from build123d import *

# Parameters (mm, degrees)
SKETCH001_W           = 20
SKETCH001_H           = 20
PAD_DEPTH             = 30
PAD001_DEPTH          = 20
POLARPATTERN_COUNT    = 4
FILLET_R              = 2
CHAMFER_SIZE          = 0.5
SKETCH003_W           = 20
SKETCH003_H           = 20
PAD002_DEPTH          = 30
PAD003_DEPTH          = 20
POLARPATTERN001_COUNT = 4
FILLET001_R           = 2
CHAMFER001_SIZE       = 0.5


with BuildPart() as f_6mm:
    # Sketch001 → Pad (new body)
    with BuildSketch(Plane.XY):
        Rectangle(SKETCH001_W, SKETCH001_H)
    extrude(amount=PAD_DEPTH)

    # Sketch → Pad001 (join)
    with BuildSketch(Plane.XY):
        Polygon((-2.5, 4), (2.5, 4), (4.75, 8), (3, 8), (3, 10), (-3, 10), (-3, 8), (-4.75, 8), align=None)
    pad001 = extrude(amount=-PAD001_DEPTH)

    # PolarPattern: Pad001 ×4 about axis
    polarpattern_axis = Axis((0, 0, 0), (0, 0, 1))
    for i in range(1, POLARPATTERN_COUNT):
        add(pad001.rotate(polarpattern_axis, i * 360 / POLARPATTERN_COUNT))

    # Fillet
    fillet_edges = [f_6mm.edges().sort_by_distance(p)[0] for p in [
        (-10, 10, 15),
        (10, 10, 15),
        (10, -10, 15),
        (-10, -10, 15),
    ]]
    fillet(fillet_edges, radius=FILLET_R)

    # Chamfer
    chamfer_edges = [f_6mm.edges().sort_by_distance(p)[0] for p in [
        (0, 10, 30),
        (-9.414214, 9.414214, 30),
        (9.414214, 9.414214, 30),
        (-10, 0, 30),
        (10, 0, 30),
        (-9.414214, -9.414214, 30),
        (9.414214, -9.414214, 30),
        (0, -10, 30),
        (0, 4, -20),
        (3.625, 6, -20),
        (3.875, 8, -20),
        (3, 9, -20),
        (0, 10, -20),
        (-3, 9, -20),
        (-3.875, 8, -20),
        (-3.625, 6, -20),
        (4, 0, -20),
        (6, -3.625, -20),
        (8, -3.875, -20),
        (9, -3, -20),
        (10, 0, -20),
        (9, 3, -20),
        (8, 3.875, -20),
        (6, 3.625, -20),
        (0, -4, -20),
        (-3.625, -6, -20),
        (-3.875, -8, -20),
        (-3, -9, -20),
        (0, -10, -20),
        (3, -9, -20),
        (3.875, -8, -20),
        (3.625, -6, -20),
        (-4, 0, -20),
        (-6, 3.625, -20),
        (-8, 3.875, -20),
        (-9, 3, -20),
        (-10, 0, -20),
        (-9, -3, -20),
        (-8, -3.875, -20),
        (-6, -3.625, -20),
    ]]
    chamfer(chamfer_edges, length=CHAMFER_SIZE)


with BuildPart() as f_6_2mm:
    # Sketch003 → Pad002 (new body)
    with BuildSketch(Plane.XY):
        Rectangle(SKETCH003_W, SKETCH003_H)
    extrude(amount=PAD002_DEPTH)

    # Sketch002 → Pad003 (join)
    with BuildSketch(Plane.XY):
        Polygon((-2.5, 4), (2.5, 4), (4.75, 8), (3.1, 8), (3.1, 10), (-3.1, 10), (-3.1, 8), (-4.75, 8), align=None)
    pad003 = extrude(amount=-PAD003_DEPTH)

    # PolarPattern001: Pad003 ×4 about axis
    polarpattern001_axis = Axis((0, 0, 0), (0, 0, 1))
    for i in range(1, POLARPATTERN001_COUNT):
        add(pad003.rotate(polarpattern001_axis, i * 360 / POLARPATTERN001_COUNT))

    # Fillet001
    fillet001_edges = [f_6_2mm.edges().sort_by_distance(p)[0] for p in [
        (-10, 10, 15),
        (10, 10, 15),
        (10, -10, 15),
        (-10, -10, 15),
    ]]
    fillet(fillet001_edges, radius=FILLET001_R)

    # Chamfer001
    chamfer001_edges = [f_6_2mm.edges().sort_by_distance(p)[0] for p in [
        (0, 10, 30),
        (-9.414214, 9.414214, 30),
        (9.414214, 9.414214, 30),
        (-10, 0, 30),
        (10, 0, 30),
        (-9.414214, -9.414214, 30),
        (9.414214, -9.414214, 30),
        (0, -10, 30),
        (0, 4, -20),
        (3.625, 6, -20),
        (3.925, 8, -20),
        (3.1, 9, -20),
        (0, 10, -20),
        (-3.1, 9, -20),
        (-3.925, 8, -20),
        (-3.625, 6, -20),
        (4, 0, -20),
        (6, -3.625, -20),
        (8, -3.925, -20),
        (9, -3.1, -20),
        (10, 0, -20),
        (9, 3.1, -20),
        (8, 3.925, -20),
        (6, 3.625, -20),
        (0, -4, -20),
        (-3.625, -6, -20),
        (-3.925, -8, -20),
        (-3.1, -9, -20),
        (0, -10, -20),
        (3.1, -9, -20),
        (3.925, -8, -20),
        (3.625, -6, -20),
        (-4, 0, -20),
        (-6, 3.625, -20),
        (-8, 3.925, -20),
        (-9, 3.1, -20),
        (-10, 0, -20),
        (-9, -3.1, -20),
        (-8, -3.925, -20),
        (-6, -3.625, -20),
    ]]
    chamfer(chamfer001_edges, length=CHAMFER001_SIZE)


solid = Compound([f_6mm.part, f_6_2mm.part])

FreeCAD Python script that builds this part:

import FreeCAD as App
import Part
import Sketcher


def edges_at(feature, points):
    """Names of the edges that pass closest to the given points."""
    edges = feature.Shape.Edges
    near = lambda p: min(range(len(edges)), key=lambda i: edges[i].distToShape(Part.Vertex(*p))[0])
    return sorted({f"Edge{near(p) + 1}" for p in points})


def add_polygon(sketch, points):
    """Adds a closed chain of lines whose ends are joined by coincident constraints."""
    first, n = sketch.GeometryCount, len(points)
    for a, b in zip(points, points[1:] + points[:1]):
        sketch.addGeometry(Part.LineSegment(App.Vector(*a, 0), App.Vector(*b, 0)), False)
    for i in range(n):
        sketch.addConstraint(Sketcher.Constraint("Coincident", first + i, 2, first + (i + 1) % n, 1))

doc = App.newDocument("Part")
body = doc.addObject("PartDesign::Body", "Body")

sketch1 = body.newObject("Sketcher::SketchObject", "Sketch")
sketch1.AttachmentSupport = (doc.getObject("XY_Plane"), [""])
sketch1.MapMode = "FlatFace"
add_polygon(sketch1, [(-10, 10), (-10, -10), (10, -10), (10, 10)])
sketch1.addConstraint([
    Sketcher.Constraint("Vertical", 0),
    Sketcher.Constraint("Horizontal", 1),
    Sketcher.Constraint("Vertical", 2),
    Sketcher.Constraint("Horizontal", 3),
    Sketcher.Constraint("Symmetric", 0, 2, 2, 2, -1, 1),
    Sketcher.Constraint("Equal", 3, 0),
    Sketcher.Constraint("DistanceX", 1, 1, 1, 2, 20.0),
])
pad1 = body.newObject("PartDesign::Pad", "Pad")
pad1.Profile = sketch1
pad1.Length = 30

sketch2 = body.newObject("Sketcher::SketchObject", "Sketch001")
sketch2.AttachmentSupport = (doc.getObject("XY_Plane"), [""])
sketch2.MapMode = "FlatFace"
add_polygon(sketch2, [(-2.5, 4), (2.5, 4), (4.8, 8), (3, 8), (3, 10), (-3, 10), (-3, 8), (-4.8, 8)])
sketch2.addConstraint([
    Sketcher.Constraint("Horizontal", 0),
    Sketcher.Constraint("Horizontal", 2),
    Sketcher.Constraint("Vertical", 3),
    Sketcher.Constraint("Horizontal", 4),
    Sketcher.Constraint("Vertical", 5),
    Sketcher.Constraint("Horizontal", 6),
    Sketcher.Constraint("Symmetric", 2, 2, 5, 2, -2),
    Sketcher.Constraint("Equal", 2, 6),
    Sketcher.Constraint("Equal", 1, 7),
    Sketcher.Constraint("DistanceX", 0, 1, 0, 2, 5.0),
    Sketcher.Constraint("DistanceX", 4, 2, 4, 1, 6.0),
    Sketcher.Constraint("DistanceY", 3, 1, 3, 2, 2.0),
    Sketcher.Constraint("DistanceY", -1, 1, 0, 2, 4.0),
    Sketcher.Constraint("DistanceY", -1, 1, 1, 2, 8.0),
    Sketcher.Constraint("DistanceX", 2, 2, 2, 1, 1.75),
])
pad2 = body.newObject("PartDesign::Pad", "Pad001")
pad2.Profile = sketch2
pad2.Length = 20
pad2.Reversed = True
doc.recompute()

polarpattern = body.newObject("PartDesign::PolarPattern", "PolarPattern")
polarpattern.Originals = [pad2]
polarpattern.Axis = (doc.getObject("Z_Axis"), [""])
polarpattern.Angle = 360
polarpattern.Occurrences = 4
body.Tip = polarpattern
doc.recompute()

fillet = body.newObject("PartDesign::Fillet", "Fillet")
fillet.Base = (polarpattern, edges_at(polarpattern, [
    (-10, 10, 15),
    (10, 10, 15),
    (10, -10, 15),
    (-10, -10, 15),
]))
fillet.Radius = 2
doc.recompute()

chamfer = body.newObject("PartDesign::Chamfer", "Chamfer")
chamfer.Base = (fillet, edges_at(fillet, [
    (0, 10, 30),
    (-9.414, 9.414, 30),
    (9.414, 9.414, 30),
    (-10, 0, 30),
    (10, 0, 30),
    (-9.414, -9.414, 30),
    (9.414, -9.414, 30),
    (0, -10, 30),
    (0, 4, -20),
    (3.625, 6, -20),
    (3.875, 8, -20),
    (3, 9, -20),
    (0, 10, -20),
    (-3, 9, -20),
    (-3.875, 8, -20),
    (-3.625, 6, -20),
    (4, 0, -20),
    (6, -3.625, -20),
    (8, -3.875, -20),
    (9, -3, -20),
    (10, 0, -20),
    (9, 3, -20),
    (8, 3.875, -20),
    (6, 3.625, -20),
    (0, -4, -20),
    (-3.625, -6, -20),
    (-3.875, -8, -20),
    (-3, -9, -20),
    (0, -10, -20),
    (3, -9, -20),
    (3.875, -8, -20),
    (3.625, -6, -20),
    (-4, 0, -20),
    (-6, 3.625, -20),
    (-8, 3.875, -20),
    (-9, 3, -20),
    (-10, 0, -20),
    (-9, -3, -20),
    (-8, -3.875, -20),
    (-6, -3.625, -20),
]))
chamfer.Size = 0.5
body2 = doc.addObject("PartDesign::Body", "Body001")

sketch3 = body2.newObject("Sketcher::SketchObject", "Sketch002")
sketch3.AttachmentSupport = (doc.getObject("XY_Plane001"), [""])
sketch3.MapMode = "FlatFace"
add_polygon(sketch3, [(-10, 10), (-10, -10), (10, -10), (10, 10)])
sketch3.addConstraint([
    Sketcher.Constraint("Vertical", 0),
    Sketcher.Constraint("Horizontal", 1),
    Sketcher.Constraint("Vertical", 2),
    Sketcher.Constraint("Horizontal", 3),
    Sketcher.Constraint("Symmetric", 0, 2, 2, 2, -1, 1),
    Sketcher.Constraint("Equal", 3, 0),
    Sketcher.Constraint("DistanceX", 1, 1, 1, 2, 20.0),
])
pad3 = body2.newObject("PartDesign::Pad", "Pad002")
pad3.Profile = sketch3
pad3.Length = 30

sketch4 = body2.newObject("Sketcher::SketchObject", "Sketch003")
sketch4.AttachmentSupport = (doc.getObject("XY_Plane001"), [""])
sketch4.MapMode = "FlatFace"
add_polygon(sketch4, [(-2.5, 4), (2.5, 4), (4.8, 8), (3.1, 8), (3.1, 10), (-3.1, 10), (-3.1, 8), (-4.8, 8)])
sketch4.addConstraint([
    Sketcher.Constraint("Horizontal", 0),
    Sketcher.Constraint("Horizontal", 2),
    Sketcher.Constraint("Vertical", 3),
    Sketcher.Constraint("Horizontal", 4),
    Sketcher.Constraint("Vertical", 5),
    Sketcher.Constraint("Horizontal", 6),
    Sketcher.Constraint("Symmetric", 2, 2, 5, 2, -2),
    Sketcher.Constraint("Equal", 2, 6),
    Sketcher.Constraint("Equal", 1, 7),
    Sketcher.Constraint("DistanceX", 0, 1, 0, 2, 5.0),
    Sketcher.Constraint("DistanceY", 3, 1, 3, 2, 2.0),
    Sketcher.Constraint("DistanceX", 4, 2, 4, 1, 6.2),
    Sketcher.Constraint("DistanceY", -1, 1, 0, 2, 4.0),
    Sketcher.Constraint("DistanceY", -1, 1, 1, 2, 8.0),
    Sketcher.Constraint("DistanceX", 2, 2, 2, 1, 1.65),
])
pad4 = body2.newObject("PartDesign::Pad", "Pad003")
pad4.Profile = sketch4
pad4.Length = 20
pad4.Reversed = True
doc.recompute()

polarpattern2 = body2.newObject("PartDesign::PolarPattern", "PolarPattern001")
polarpattern2.Originals = [pad4]
polarpattern2.Axis = (doc.getObject("Z_Axis001"), [""])
polarpattern2.Angle = 360
polarpattern2.Occurrences = 4
body2.Tip = polarpattern2
doc.recompute()

fillet2 = body2.newObject("PartDesign::Fillet", "Fillet001")
fillet2.Base = (polarpattern2, edges_at(polarpattern2, [
    (-10, 10, 15),
    (10, 10, 15),
    (10, -10, 15),
    (-10, -10, 15),
]))
fillet2.Radius = 2
doc.recompute()

chamfer2 = body2.newObject("PartDesign::Chamfer", "Chamfer001")
chamfer2.Base = (fillet2, edges_at(fillet2, [
    (0, 10, 30),
    (-9.414, 9.414, 30),
    (9.414, 9.414, 30),
    (-10, 0, 30),
    (10, 0, 30),
    (-9.414, -9.414, 30),
    (9.414, -9.414, 30),
    (0, -10, 30),
    (0, 4, -20),
    (3.625, 6, -20),
    (3.925, 8, -20),
    (3.1, 9, -20),
    (0, 10, -20),
    (-3.1, 9, -20),
    (-3.925, 8, -20),
    (-3.625, 6, -20),
    (4, 0, -20),
    (6, -3.625, -20),
    (8, -3.925, -20),
    (9, -3.1, -20),
    (10, 0, -20),
    (9, 3.1, -20),
    (8, 3.925, -20),
    (6, 3.625, -20),
    (0, -4, -20),
    (-3.625, -6, -20),
    (-3.925, -8, -20),
    (-3.1, -9, -20),
    (0, -10, -20),
    (3.1, -9, -20),
    (3.925, -8, -20),
    (3.625, -6, -20),
    (-4, 0, -20),
    (-6, 3.625, -20),
    (-8, 3.925, -20),
    (-9, 3.1, -20),
    (-10, 0, -20),
    (-9, -3.1, -20),
    (-8, -3.925, -20),
    (-6, -3.625, -20),
]))
chamfer2.Size = 0.5

doc.recompute()
